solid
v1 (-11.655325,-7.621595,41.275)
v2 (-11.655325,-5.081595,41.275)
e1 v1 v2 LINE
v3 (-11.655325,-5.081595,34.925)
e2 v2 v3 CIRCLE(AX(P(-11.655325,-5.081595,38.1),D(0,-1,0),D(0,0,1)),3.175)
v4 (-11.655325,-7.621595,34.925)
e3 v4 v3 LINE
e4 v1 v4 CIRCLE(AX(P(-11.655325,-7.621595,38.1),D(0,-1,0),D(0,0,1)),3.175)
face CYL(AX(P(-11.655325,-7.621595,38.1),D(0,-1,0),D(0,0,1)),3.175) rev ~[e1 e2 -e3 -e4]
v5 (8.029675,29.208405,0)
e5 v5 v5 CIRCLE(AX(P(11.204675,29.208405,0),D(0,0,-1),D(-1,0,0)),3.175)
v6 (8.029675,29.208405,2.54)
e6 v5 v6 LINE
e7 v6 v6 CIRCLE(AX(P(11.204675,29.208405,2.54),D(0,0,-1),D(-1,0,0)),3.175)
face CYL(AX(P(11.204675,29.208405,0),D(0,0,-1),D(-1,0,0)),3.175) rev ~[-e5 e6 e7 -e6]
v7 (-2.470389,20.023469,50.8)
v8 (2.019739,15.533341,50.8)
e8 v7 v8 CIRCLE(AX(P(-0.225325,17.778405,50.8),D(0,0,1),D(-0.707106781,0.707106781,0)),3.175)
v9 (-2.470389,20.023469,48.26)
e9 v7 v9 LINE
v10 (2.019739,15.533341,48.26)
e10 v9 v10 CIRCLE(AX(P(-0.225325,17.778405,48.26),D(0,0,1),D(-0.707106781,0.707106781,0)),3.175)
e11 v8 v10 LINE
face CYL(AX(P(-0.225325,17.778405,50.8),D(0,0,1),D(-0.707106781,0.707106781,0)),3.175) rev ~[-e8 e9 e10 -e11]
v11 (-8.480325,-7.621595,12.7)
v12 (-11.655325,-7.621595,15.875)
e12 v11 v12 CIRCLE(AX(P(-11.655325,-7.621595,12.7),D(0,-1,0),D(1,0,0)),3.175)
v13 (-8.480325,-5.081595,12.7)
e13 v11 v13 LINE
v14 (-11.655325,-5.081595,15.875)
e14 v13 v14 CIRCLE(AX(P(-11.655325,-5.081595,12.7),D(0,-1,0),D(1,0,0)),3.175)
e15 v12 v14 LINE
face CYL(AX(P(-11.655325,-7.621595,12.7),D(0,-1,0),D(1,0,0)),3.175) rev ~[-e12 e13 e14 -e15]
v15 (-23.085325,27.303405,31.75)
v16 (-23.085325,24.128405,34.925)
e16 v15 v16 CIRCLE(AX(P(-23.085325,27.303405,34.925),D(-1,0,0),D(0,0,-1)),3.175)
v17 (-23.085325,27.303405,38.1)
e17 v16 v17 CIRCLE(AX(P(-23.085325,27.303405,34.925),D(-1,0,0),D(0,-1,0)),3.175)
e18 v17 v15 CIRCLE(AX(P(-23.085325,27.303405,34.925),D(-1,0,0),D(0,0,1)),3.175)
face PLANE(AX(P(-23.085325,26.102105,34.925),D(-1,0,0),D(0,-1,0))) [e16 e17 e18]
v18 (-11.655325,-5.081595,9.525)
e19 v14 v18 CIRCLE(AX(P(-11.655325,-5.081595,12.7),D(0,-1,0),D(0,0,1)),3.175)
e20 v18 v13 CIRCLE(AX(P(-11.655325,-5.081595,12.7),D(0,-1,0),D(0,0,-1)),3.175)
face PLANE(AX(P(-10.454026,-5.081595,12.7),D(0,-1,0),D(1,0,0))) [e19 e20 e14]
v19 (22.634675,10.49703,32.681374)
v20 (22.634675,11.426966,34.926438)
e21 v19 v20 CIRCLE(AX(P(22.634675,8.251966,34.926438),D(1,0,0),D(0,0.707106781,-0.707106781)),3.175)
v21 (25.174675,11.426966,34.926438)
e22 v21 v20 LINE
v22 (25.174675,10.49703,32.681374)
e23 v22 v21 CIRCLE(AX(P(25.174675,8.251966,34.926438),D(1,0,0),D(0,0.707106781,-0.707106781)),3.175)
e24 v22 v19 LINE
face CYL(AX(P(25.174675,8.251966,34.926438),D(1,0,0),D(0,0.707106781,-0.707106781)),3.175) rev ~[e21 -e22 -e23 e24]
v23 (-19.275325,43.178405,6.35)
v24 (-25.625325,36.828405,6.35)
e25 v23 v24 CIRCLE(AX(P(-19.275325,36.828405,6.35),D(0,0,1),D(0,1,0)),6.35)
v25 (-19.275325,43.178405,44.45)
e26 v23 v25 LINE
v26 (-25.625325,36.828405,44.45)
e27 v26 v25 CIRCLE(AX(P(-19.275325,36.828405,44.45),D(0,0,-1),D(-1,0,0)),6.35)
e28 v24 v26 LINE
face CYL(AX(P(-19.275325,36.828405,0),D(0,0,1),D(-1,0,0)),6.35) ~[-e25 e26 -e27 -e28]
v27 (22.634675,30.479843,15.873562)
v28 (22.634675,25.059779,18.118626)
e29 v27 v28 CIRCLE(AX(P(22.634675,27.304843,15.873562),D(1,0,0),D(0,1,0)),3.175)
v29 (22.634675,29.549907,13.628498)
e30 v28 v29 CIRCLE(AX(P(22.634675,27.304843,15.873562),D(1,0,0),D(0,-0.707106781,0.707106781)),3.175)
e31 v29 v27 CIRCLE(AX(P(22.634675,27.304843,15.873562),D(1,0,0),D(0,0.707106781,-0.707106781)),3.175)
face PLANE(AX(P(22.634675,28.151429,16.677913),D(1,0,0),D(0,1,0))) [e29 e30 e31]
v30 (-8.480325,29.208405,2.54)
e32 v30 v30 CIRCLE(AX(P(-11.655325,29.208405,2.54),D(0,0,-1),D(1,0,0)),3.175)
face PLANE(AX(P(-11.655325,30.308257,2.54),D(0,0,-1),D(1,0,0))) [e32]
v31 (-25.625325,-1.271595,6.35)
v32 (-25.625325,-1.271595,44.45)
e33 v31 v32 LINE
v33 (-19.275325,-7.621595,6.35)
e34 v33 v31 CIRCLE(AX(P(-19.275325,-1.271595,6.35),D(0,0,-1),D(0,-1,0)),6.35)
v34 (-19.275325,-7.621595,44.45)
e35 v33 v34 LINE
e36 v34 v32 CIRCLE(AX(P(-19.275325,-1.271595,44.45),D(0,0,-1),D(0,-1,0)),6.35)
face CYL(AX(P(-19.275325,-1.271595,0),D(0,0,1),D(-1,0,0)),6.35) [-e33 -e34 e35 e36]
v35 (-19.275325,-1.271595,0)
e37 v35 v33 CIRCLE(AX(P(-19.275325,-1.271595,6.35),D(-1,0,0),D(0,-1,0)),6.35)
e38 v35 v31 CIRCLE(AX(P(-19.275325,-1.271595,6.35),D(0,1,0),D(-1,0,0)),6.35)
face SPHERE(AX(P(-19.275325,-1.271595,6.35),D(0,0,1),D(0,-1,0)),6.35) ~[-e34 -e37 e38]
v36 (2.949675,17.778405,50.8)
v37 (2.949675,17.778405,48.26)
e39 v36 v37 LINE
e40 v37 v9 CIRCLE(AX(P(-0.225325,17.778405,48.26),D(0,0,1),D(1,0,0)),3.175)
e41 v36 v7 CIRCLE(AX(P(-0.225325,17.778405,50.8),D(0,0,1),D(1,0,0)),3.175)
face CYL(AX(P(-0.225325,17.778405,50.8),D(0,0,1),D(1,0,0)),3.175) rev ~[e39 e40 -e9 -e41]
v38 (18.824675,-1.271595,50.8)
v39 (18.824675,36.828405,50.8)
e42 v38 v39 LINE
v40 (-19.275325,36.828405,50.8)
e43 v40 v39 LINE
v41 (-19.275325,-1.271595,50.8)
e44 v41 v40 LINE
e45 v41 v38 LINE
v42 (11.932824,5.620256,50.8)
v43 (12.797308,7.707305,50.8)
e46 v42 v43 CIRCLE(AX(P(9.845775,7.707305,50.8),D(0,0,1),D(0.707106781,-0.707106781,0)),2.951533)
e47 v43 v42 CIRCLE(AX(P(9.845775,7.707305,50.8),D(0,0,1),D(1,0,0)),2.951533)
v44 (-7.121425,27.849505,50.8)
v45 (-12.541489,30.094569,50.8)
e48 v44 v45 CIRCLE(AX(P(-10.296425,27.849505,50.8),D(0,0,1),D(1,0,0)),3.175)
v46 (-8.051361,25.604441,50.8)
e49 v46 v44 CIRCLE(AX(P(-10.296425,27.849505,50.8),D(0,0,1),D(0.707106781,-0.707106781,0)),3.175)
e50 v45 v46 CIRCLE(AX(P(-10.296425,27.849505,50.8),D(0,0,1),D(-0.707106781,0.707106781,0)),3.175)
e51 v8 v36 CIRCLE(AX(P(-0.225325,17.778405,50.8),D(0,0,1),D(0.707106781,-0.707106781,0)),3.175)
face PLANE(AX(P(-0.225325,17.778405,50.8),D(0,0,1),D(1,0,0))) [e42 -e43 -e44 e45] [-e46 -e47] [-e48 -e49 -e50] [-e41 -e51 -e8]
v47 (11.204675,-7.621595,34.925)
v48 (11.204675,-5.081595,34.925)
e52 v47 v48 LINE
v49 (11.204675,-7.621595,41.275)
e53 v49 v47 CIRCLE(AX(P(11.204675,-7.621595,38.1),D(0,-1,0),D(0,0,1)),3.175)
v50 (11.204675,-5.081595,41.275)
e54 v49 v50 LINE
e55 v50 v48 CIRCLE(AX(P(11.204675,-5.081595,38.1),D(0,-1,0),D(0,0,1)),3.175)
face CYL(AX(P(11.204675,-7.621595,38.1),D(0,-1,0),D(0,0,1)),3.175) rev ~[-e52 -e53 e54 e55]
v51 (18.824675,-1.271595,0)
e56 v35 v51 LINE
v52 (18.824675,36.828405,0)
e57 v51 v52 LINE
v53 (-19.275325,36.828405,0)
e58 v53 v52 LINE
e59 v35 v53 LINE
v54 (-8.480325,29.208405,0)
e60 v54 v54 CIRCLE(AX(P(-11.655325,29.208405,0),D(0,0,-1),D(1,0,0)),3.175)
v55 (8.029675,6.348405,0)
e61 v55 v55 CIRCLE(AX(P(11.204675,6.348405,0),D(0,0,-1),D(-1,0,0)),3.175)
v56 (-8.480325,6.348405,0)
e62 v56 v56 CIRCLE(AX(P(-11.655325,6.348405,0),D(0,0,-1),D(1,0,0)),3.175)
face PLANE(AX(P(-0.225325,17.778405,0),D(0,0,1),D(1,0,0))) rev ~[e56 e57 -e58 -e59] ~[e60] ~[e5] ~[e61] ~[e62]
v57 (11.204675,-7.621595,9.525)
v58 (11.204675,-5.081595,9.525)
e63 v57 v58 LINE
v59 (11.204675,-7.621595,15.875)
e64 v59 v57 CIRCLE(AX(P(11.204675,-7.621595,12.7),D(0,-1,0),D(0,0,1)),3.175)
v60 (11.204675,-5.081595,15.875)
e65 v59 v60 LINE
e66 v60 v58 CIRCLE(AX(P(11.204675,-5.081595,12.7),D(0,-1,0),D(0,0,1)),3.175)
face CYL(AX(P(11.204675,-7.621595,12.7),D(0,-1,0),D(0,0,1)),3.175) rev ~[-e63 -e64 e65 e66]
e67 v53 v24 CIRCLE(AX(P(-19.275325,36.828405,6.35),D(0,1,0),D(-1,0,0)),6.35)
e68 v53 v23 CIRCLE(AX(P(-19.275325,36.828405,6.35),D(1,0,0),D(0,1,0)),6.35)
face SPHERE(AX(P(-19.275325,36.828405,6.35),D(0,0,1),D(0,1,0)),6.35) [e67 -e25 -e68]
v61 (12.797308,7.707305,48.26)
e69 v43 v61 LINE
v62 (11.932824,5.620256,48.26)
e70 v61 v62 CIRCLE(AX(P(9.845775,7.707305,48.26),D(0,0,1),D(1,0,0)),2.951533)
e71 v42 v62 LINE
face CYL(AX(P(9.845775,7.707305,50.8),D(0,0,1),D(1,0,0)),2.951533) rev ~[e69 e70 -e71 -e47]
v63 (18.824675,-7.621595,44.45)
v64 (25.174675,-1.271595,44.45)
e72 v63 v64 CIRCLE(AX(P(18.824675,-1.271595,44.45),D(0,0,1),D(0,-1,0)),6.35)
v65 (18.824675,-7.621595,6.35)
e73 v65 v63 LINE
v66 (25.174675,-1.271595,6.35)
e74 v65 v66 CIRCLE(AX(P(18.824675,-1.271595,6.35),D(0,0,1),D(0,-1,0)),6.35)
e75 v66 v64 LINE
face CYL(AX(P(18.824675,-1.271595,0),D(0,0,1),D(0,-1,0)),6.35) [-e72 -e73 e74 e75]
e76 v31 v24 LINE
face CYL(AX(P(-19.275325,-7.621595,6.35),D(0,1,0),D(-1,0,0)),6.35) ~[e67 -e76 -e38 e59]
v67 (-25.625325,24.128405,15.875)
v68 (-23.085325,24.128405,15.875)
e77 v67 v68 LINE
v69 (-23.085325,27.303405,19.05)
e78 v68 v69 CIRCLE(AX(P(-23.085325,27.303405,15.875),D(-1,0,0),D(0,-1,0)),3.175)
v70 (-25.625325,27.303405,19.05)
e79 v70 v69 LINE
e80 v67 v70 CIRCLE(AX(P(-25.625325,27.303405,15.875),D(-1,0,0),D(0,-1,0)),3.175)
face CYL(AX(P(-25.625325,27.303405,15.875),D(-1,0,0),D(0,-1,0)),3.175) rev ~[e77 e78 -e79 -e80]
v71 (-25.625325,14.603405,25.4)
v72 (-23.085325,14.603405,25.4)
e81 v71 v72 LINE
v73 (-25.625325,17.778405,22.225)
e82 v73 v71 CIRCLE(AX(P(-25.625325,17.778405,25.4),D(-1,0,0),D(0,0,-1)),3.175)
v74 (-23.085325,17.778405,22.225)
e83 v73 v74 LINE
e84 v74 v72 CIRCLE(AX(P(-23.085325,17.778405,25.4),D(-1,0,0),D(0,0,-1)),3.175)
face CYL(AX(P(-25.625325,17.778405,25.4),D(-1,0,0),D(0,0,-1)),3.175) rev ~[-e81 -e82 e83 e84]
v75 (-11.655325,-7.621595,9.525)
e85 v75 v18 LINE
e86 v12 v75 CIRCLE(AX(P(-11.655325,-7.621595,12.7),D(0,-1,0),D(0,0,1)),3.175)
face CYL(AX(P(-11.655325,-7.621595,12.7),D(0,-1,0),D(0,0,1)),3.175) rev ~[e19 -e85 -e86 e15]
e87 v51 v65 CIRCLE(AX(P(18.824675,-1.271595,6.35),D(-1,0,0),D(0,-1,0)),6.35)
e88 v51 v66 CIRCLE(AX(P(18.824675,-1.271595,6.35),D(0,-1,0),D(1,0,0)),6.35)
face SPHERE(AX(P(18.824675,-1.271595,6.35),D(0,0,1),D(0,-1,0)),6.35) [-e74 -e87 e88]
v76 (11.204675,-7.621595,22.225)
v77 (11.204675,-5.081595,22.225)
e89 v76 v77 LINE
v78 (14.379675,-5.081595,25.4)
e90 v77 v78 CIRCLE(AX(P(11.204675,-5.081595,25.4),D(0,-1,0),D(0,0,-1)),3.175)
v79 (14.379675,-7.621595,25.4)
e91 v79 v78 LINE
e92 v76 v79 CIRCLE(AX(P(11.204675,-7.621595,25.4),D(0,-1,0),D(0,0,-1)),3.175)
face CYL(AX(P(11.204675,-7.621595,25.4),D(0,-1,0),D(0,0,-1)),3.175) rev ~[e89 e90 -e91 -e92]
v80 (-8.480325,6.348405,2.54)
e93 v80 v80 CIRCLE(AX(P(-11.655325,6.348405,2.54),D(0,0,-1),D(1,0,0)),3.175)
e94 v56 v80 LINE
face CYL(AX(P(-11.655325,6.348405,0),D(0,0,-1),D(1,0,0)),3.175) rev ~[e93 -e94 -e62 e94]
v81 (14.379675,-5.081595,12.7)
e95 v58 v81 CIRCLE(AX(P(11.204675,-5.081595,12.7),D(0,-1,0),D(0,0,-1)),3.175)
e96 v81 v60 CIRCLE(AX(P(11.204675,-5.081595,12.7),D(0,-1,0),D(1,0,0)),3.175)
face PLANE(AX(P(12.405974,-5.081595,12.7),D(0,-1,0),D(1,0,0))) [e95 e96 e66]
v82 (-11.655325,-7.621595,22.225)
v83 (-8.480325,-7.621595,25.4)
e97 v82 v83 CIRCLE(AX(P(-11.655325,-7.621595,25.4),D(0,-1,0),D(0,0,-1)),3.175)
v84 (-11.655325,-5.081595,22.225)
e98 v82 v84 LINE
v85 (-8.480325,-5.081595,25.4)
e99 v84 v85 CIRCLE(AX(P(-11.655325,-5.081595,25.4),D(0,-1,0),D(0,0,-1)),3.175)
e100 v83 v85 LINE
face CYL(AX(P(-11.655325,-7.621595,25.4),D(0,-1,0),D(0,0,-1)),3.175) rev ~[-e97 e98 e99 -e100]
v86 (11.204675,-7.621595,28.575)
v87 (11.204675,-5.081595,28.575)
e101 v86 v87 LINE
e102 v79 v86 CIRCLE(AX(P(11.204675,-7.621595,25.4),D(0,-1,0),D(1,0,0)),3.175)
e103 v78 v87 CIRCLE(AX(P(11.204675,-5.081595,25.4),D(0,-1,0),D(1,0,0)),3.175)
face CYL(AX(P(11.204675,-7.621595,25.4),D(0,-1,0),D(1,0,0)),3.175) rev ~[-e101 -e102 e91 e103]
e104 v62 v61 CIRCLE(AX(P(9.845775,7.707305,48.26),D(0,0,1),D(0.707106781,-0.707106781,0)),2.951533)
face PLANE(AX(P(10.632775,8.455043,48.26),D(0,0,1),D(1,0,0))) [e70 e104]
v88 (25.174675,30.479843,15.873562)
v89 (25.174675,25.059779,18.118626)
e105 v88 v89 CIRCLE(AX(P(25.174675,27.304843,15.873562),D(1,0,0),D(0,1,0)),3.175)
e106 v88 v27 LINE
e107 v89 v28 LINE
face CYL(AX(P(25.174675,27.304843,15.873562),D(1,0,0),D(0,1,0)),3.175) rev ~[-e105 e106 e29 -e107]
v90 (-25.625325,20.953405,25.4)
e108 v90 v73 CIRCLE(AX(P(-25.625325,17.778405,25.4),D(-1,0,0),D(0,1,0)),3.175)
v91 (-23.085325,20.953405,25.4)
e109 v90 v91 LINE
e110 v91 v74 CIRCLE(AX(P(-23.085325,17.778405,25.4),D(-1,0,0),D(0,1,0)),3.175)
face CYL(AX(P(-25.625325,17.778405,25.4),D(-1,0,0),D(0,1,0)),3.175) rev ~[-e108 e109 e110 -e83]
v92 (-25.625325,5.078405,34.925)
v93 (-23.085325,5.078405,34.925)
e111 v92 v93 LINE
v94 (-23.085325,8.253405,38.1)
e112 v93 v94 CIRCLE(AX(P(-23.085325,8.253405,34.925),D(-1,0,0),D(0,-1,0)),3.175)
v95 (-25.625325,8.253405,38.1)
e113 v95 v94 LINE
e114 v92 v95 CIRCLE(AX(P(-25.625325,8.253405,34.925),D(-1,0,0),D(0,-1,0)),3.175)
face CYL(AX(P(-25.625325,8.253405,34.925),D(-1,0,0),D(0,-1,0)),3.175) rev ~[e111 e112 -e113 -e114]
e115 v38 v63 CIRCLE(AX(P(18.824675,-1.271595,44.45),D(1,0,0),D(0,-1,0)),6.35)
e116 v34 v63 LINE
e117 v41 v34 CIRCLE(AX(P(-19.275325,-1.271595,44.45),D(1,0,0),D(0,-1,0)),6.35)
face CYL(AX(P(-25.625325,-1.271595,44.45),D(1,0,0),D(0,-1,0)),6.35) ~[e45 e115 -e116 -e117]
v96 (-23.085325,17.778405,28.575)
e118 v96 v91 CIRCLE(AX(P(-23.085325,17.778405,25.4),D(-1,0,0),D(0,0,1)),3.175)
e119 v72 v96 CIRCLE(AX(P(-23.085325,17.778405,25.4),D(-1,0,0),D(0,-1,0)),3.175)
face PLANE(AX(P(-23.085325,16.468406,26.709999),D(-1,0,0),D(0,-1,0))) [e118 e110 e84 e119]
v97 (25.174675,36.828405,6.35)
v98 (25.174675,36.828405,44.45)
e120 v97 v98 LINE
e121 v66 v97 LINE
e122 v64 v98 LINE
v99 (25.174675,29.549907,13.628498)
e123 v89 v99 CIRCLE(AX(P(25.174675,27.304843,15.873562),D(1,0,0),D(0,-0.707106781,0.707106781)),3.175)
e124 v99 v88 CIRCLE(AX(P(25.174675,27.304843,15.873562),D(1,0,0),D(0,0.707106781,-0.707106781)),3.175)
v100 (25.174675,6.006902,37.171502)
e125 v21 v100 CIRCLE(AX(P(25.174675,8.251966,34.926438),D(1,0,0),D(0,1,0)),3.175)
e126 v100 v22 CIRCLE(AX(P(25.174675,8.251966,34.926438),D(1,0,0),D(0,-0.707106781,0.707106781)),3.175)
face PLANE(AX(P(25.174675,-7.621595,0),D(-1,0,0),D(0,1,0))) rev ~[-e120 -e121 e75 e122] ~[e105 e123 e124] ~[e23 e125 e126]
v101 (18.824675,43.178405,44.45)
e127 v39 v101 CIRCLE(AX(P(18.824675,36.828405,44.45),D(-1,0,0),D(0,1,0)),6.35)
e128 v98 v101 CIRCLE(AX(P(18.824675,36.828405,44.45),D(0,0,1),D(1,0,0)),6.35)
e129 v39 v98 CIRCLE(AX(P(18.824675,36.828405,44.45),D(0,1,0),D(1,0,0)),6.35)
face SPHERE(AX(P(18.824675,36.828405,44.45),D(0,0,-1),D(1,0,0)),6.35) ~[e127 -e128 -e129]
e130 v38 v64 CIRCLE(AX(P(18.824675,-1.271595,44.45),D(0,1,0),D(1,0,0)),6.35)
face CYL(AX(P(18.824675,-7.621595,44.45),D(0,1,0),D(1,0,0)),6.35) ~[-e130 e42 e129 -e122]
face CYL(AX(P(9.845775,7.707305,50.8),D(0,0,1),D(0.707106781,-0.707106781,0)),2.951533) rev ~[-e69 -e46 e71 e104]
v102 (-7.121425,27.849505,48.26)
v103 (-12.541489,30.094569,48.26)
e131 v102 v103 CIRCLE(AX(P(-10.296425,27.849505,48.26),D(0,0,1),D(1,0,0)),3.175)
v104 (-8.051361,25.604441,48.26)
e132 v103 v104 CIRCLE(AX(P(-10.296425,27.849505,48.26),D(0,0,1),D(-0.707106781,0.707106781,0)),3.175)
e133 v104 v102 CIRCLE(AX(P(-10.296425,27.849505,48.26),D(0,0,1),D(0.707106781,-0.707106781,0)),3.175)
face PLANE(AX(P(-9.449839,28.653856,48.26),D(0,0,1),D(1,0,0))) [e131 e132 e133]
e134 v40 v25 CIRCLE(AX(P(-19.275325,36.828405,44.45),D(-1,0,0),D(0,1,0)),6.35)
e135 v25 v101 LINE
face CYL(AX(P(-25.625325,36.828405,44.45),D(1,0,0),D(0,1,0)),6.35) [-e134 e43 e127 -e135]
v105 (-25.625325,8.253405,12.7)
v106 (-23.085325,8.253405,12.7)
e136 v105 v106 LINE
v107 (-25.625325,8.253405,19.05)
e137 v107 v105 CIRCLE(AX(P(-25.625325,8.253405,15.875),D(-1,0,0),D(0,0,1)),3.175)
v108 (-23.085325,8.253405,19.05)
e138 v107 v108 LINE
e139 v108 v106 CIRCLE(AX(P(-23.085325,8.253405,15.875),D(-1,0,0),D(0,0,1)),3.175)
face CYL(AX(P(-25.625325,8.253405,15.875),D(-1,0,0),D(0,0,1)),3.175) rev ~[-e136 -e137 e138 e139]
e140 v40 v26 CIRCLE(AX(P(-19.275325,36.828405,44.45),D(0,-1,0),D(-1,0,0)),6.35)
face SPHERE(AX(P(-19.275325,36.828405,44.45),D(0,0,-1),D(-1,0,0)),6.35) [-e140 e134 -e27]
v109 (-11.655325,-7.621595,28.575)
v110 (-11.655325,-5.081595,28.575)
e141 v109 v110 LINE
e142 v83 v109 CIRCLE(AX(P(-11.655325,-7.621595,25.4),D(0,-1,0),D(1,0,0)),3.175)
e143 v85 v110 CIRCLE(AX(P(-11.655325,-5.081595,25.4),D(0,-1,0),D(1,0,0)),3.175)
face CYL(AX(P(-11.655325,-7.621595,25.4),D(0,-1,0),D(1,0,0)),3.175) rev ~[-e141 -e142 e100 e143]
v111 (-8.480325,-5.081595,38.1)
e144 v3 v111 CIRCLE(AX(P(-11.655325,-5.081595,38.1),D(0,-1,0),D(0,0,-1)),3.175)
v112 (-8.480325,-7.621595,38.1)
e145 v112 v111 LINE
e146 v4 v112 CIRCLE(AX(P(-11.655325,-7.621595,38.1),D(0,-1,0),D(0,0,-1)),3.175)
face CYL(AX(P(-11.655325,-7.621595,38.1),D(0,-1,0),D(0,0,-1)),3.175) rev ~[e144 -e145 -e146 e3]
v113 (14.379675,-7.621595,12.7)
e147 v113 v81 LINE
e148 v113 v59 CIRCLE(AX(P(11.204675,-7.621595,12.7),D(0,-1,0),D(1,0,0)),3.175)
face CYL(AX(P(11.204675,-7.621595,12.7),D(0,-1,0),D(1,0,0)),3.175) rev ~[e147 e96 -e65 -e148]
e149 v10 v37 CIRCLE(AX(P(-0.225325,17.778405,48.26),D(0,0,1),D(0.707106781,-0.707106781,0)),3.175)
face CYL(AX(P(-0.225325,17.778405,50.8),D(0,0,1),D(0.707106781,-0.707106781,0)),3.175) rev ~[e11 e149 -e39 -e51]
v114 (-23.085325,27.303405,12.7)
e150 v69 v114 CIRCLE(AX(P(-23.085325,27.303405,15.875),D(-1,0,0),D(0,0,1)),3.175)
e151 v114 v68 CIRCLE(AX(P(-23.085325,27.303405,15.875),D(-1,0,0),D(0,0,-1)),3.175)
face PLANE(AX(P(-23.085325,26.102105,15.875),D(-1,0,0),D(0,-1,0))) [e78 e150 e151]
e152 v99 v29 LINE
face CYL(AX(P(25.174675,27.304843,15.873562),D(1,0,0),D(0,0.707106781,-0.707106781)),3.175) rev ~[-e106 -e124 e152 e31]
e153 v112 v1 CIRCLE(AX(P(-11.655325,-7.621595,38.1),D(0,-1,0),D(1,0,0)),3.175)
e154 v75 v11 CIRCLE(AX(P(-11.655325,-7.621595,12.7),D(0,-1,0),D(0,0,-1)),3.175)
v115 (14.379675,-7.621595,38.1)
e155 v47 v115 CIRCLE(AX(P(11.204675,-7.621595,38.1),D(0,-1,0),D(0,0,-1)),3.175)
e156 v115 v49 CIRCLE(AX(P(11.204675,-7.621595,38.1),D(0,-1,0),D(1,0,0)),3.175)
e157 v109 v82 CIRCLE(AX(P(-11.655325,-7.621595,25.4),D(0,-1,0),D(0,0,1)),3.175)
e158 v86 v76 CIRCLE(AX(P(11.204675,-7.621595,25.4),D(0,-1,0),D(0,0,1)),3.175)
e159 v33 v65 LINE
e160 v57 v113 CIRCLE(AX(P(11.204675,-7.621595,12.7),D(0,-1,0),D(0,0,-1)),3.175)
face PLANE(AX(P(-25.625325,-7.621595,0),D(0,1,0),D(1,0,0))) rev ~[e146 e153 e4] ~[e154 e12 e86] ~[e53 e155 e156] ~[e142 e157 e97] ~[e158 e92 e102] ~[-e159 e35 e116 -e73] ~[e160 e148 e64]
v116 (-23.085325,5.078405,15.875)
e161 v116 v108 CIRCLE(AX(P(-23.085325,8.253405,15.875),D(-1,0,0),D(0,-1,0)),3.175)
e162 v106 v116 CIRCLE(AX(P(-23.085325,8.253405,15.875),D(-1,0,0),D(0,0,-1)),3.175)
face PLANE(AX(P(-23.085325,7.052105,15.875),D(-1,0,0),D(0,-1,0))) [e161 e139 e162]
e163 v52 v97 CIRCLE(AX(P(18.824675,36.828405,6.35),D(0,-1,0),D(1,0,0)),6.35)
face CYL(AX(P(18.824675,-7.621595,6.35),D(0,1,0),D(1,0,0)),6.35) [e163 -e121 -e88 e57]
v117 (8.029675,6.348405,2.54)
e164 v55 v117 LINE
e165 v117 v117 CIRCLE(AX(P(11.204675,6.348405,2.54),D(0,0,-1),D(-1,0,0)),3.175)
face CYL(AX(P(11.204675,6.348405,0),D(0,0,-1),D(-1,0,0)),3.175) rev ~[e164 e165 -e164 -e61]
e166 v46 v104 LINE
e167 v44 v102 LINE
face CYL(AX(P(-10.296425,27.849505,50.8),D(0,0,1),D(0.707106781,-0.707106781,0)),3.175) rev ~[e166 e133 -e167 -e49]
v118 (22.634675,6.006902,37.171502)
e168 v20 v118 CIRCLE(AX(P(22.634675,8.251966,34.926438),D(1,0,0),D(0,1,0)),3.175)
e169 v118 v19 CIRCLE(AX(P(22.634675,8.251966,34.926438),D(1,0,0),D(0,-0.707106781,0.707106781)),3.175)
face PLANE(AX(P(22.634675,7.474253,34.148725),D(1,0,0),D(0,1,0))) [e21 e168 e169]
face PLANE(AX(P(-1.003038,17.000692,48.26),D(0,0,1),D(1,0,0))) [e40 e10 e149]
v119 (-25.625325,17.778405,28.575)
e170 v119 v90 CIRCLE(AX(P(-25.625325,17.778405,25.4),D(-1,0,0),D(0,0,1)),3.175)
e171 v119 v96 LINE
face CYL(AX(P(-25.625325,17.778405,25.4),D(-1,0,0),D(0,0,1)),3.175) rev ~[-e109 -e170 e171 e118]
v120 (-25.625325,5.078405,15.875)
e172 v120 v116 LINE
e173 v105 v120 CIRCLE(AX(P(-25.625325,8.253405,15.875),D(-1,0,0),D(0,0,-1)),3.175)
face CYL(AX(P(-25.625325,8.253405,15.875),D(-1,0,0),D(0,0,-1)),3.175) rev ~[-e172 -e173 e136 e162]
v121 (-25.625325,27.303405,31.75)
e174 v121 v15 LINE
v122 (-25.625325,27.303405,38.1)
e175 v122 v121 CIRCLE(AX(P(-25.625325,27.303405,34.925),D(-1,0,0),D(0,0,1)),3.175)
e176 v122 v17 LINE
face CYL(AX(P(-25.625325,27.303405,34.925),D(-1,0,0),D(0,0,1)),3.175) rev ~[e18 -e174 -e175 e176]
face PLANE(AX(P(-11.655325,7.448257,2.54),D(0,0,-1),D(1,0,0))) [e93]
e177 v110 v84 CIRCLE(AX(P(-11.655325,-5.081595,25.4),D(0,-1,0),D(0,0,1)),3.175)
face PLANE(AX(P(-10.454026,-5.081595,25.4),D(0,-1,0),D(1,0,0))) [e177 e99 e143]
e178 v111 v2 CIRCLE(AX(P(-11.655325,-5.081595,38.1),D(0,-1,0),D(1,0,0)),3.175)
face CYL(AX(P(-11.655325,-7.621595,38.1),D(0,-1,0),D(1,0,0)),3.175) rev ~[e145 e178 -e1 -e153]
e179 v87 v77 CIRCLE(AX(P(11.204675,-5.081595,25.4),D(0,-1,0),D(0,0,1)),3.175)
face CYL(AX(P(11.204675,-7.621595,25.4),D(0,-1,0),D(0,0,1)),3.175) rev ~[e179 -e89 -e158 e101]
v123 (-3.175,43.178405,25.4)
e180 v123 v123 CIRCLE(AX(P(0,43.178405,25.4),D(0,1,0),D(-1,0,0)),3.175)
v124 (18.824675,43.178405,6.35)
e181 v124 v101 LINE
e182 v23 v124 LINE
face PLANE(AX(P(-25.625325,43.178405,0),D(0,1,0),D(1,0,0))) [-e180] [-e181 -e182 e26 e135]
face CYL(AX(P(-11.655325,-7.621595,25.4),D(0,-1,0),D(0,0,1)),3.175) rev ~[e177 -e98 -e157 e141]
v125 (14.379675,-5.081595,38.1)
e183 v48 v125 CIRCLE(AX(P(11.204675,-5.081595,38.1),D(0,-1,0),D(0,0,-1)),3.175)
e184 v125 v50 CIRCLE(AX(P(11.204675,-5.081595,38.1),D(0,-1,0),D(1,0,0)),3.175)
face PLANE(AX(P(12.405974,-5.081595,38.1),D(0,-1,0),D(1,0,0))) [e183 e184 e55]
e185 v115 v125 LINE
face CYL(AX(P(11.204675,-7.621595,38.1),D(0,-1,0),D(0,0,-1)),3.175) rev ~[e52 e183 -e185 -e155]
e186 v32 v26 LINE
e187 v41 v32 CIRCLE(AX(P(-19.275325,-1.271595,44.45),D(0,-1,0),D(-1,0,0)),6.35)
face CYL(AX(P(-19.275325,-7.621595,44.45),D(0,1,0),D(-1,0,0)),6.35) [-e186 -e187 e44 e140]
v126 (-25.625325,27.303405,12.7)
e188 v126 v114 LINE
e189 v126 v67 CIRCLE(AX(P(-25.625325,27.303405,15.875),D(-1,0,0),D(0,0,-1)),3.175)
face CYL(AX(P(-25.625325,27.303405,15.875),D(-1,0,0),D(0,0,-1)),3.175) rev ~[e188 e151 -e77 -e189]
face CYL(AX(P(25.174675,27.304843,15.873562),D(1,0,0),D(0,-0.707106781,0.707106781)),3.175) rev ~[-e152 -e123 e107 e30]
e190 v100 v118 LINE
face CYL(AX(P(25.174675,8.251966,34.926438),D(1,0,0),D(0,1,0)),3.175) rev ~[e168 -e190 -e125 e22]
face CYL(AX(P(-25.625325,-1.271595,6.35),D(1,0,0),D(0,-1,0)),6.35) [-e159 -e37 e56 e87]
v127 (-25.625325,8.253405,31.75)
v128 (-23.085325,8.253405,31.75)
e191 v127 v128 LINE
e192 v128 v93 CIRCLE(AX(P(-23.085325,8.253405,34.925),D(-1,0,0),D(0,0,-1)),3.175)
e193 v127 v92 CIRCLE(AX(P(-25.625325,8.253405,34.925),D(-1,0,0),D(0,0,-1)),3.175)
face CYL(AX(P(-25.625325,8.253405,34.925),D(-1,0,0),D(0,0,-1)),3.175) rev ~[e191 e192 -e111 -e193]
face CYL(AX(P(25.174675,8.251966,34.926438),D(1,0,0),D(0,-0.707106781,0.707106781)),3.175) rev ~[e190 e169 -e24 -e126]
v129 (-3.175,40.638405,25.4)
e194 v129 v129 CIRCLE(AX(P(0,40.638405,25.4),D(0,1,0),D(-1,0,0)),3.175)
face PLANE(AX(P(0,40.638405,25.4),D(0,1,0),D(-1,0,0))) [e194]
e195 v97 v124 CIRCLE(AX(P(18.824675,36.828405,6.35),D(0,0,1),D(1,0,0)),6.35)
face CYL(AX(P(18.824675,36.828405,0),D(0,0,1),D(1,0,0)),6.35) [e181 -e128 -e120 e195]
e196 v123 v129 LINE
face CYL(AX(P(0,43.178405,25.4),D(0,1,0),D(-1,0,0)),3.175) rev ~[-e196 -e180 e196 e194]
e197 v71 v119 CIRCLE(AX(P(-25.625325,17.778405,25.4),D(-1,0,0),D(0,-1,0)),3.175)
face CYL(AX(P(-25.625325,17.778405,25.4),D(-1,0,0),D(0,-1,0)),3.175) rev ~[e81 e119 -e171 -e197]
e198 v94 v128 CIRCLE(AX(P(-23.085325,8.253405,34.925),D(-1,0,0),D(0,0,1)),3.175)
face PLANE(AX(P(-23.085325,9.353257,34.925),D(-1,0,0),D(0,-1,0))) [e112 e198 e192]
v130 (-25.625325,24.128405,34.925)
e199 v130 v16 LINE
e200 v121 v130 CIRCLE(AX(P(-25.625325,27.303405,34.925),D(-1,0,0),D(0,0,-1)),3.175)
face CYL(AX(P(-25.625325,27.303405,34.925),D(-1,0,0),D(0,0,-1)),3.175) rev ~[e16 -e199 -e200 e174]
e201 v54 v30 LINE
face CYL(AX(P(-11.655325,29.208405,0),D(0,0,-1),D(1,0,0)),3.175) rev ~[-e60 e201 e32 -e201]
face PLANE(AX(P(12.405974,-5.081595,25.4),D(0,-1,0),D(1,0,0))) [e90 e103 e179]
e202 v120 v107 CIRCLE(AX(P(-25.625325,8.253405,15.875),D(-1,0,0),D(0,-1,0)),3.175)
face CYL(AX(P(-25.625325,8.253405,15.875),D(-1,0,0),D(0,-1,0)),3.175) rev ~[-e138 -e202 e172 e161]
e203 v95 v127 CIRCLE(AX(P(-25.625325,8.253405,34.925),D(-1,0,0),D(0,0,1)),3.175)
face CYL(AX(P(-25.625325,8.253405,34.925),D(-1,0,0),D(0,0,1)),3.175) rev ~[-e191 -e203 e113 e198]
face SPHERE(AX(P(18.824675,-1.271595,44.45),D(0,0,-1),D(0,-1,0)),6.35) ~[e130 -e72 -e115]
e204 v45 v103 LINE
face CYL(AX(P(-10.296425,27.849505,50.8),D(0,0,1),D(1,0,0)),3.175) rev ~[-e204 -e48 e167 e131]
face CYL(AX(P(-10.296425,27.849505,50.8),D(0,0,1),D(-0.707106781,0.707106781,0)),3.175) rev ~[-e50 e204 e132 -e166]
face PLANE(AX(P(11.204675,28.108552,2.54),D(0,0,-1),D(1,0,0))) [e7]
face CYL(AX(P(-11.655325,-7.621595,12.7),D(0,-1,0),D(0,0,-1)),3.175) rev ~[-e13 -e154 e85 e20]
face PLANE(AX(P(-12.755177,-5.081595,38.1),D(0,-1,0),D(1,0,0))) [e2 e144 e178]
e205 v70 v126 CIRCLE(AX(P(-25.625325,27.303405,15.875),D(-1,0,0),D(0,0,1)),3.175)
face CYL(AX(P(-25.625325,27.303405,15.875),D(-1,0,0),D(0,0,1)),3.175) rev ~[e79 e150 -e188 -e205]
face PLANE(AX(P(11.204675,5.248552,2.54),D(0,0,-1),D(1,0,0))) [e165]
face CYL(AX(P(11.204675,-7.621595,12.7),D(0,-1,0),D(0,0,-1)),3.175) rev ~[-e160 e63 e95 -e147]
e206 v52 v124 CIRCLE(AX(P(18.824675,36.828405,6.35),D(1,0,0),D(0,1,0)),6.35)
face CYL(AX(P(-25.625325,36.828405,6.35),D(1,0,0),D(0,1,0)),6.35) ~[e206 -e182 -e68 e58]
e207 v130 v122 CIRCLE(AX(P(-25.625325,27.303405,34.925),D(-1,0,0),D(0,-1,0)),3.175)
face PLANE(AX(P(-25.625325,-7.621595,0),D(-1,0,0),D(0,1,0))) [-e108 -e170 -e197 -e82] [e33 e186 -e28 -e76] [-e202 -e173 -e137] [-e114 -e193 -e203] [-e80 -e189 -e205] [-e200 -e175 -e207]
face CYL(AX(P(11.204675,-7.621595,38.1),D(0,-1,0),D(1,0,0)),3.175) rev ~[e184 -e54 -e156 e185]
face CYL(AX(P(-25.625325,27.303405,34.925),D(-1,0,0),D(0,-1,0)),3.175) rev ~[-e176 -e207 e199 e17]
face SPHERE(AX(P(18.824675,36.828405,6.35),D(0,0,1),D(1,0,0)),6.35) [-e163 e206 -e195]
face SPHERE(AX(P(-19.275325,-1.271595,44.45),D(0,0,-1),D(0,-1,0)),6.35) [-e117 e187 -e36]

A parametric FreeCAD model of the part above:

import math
import FreeCAD as App
import Part
import Sketcher

V = App.Vector
Q = App.Units.Quantity


def add_polygon(sketch, points):
    """Adds a closed chain of lines whose ends are joined by coincident constraints."""
    first, n = sketch.GeometryCount, len(points)
    for a, b in zip(points, points[1:] + points[:1]):
        sketch.addGeometry(Part.LineSegment(App.Vector(*a, 0), App.Vector(*b, 0)), False)
    for i in range(n):
        sketch.addConstraint(Sketcher.Constraint("Coincident", first + i, 2, first + (i + 1) % n, 1))

doc = App.newDocument("Part")
body = doc.addObject("PartDesign::Body", "Body")

# Sketch on XY plane
sketch1 = doc.addObject("Sketcher::SketchObject", "Sketch")
body.addObject(sketch1)
sketch1.AttachmentSupport = (doc.XY_Plane, [""])
sketch1.MapMode = "FlatFace"
add_polygon(sketch1, [(-26, 43), (-26, -8), (25, -8), (25, 43)])  # lines 0-3
sketch1.addConstraint(Sketcher.Constraint("Vertical", 0))
sketch1.addConstraint(Sketcher.Constraint("Horizontal", 1))
sketch1.addConstraint(Sketcher.Constraint("Vertical", 2))
sketch1.addConstraint(Sketcher.Constraint("Horizontal", 3))
sketch1.addConstraint(Sketcher.Constraint("Equal", 3, 0))
sketch1.addConstraint(Sketcher.Constraint("DistanceX", 1, 1, 1, 2, Q("2 in")))
sketch1.addConstraint(Sketcher.Constraint("DistanceX", 0, 2, -1, 1, 25.625325))
sketch1.addConstraint(Sketcher.Constraint("DistanceY", 0, 2, -1, 1, 7.621595))
pad1 = doc.addObject("PartDesign::Pad", "Pad")
body.addObject(pad1)
pad1.Profile = sketch1
pad1.Length = Q("2 in")
doc.recompute()

fillet = doc.addObject("PartDesign::Fillet", "Fillet")
body.addObject(fillet)
fillet.Base = (pad1, ["Edge1"])
fillet.UseAllEdges = True
fillet.Radius = Q("0.25 in")

# Sketch on XZ plane
sketch2 = doc.addObject("Sketcher::SketchObject", "Sketch001")
body.addObject(sketch2)
sketch2.AttachmentSupport = (doc.XZ_Plane, [""])
sketch2.MapMode = "FlatFace"
sketch2.AttachmentOffset = App.Placement(V(0, 0, -43.178405), App.Rotation())
sketch2.addGeometry(Part.Circle(V(0, 25.4, 0), V(0, 0, 1), 3.2), False)
sketch2.addConstraint(Sketcher.Constraint("PointOnObject", 0, 3, -2))
sketch2.addConstraint(Sketcher.Constraint("Diameter", 0, Q("0.25 in")))
sketch2.addConstraint(Sketcher.Constraint("DistanceY", -1, 1, 0, 3, Q("1 in")))
pocket1 = doc.addObject("PartDesign::Pocket", "Pocket")
body.addObject(pocket1)
pocket1.Profile = sketch2
pocket1.Length = Q("0.1 in")
pocket1.Reversed = True

# Sketch on XZ plane
sketch3 = doc.addObject("Sketcher::SketchObject", "Sketch002")
body.addObject(sketch3)
sketch3.AttachmentSupport = (doc.XZ_Plane, [""])
sketch3.MapMode = "FlatFace"
sketch3.AttachmentOffset = App.Placement(V(0, 0, 7.621595), App.Rotation())
sketch3.addGeometry(Part.ArcOfCircle(Part.Circle(V(-11.7, 38.1, 0), V(0, 0, 1), 3.2), math.radians(90), math.radians(270)), False)
sketch3.addGeometry(Part.ArcOfCircle(Part.Circle(V(-11.7, 38.1, 0), V(0, 0, 1), 3.2), math.radians(-90), math.radians(0)), False)
sketch3.addGeometry(Part.ArcOfCircle(Part.Circle(V(-11.7, 38.1, 0), V(0, 0, 1), 3.2), math.radians(0), math.radians(90)), False)
sketch3.addGeometry(Part.ArcOfCircle(Part.Circle(V(-11.7, 25.4, 0), V(0, 0, 1), 3.2), math.radians(0), math.radians(90)), False)
sketch3.addGeometry(Part.ArcOfCircle(Part.Circle(V(-11.7, 25.4, 0), V(0, 0, 1), 3.2), math.radians(90), math.radians(270)), False)
sketch3.addGeometry(Part.ArcOfCircle(Part.Circle(V(-11.7, 25.4, 0), V(0, 0, 1), 3.2), math.radians(-90), math.radians(0)), False)
sketch3.addGeometry(Part.ArcOfCircle(Part.Circle(V(-11.7, 12.7, 0), V(0, 0, 1), 3.2), math.radians(-90), math.radians(0)), False)
sketch3.addGeometry(Part.ArcOfCircle(Part.Circle(V(-11.7, 12.7, 0), V(0, 0, 1), 3.2), math.radians(0), math.radians(90)), False)
sketch3.addGeometry(Part.ArcOfCircle(Part.Circle(V(-11.7, 12.7, 0), V(0, 0, 1), 3.2), math.radians(90), math.radians(270)), False)
sketch3.addGeometry(Part.ArcOfCircle(Part.Circle(V(11.2, 12.7, 0), V(0, 0, 1), 3.2), math.radians(-90), math.radians(0)), False)
sketch3.addGeometry(Part.ArcOfCircle(Part.Circle(V(11.2, 12.7, 0), V(0, 0, 1), 3.2), math.radians(0), math.radians(90)), False)
sketch3.addGeometry(Part.ArcOfCircle(Part.Circle(V(11.2, 12.7, 0), V(0, 0, 1), 3.2), math.radians(90), math.radians(270)), False)
sketch3.addGeometry(Part.ArcOfCircle(Part.Circle(V(11.2, 25.4, 0), V(0, 0, 1), 3.2), math.radians(0), math.radians(90)), False)
sketch3.addGeometry(Part.ArcOfCircle(Part.Circle(V(11.2, 25.4, 0), V(0, 0, 1), 3.2), math.radians(90), math.radians(270)), False)
sketch3.addGeometry(Part.ArcOfCircle(Part.Circle(V(11.2, 25.4, 0), V(0, 0, 1), 3.2), math.radians(-90), math.radians(0)), False)
sketch3.addGeometry(Part.ArcOfCircle(Part.Circle(V(11.2, 38.1, 0), V(0, 0, 1), 3.2), math.radians(0), math.radians(90)), False)
sketch3.addGeometry(Part.ArcOfCircle(Part.Circle(V(11.2, 38.1, 0), V(0, 0, 1), 3.2), math.radians(90), math.radians(270)), False)
sketch3.addGeometry(Part.ArcOfCircle(Part.Circle(V(11.2, 38.1, 0), V(0, 0, 1), 3.2), math.radians(-90), math.radians(0)), False)
sketch3.addConstraint(Sketcher.Constraint("Tangent", 0, 2, 1, 1))
sketch3.addConstraint(Sketcher.Constraint("Tangent", 1, 2, 2, 1))
sketch3.addConstraint(Sketcher.Constraint("Tangent", 2, 2, 0, 1))
sketch3.addConstraint(Sketcher.Constraint("Tangent", 3, 2, 4, 1))
sketch3.addConstraint(Sketcher.Constraint("Tangent", 4, 2, 5, 1))
sketch3.addConstraint(Sketcher.Constraint("Tangent", 5, 2, 3, 1))
sketch3.addConstraint(Sketcher.Constraint("Tangent", 6, 2, 7, 1))
sketch3.addConstraint(Sketcher.Constraint("Tangent", 7, 2, 8, 1))
sketch3.addConstraint(Sketcher.Constraint("Tangent", 8, 2, 6, 1))
sketch3.addConstraint(Sketcher.Constraint("Tangent", 9, 2, 10, 1))
sketch3.addConstraint(Sketcher.Constraint("Tangent", 10, 2, 11, 1))
sketch3.addConstraint(Sketcher.Constraint("Tangent", 11, 2, 9, 1))
sketch3.addConstraint(Sketcher.Constraint("Tangent", 12, 2, 13, 1))
sketch3.addConstraint(Sketcher.Constraint("Tangent", 13, 2, 14, 1))
sketch3.addConstraint(Sketcher.Constraint("Tangent", 14, 2, 12, 1))
sketch3.addConstraint(Sketcher.Constraint("Tangent", 15, 2, 16, 1))
sketch3.addConstraint(Sketcher.Constraint("Tangent", 16, 2, 17, 1))
sketch3.addConstraint(Sketcher.Constraint("Tangent", 17, 2, 15, 1))
sketch3.addConstraint(Sketcher.Constraint("Equal", 2, 3))
sketch3.addConstraint(Sketcher.Constraint("Equal", 5, 6))
sketch3.addConstraint(Sketcher.Constraint("Equal", 8, 9))
sketch3.addConstraint(Sketcher.Constraint("Equal", 11, 12))
sketch3.addConstraint(Sketcher.Constraint("Equal", 14, 15))
sketch3.addConstraint(Sketcher.Constraint("Horizontal", 8, 3, 9, 3))
sketch3.addConstraint(Sketcher.Constraint("Horizontal", 5, 3, 12, 3))
sketch3.addConstraint(Sketcher.Constraint("Horizontal", 2, 3, 15, 3))
sketch3.addConstraint(Sketcher.Constraint("Horizontal", 17, 3, 1, 2))
sketch3.addConstraint(Sketcher.Constraint("Horizontal", 14, 3, 5, 2))
sketch3.addConstraint(Sketcher.Constraint("Horizontal", 11, 3, 6, 2))
sketch3.addConstraint(Sketcher.Constraint("Horizontal", 6, 2, 9, 2))
sketch3.addConstraint(Sketcher.Constraint("Horizontal", 5, 2, 14, 2))
sketch3.addConstraint(Sketcher.Constraint("Horizontal", 1, 2, 17, 2))
sketch3.addConstraint(Sketcher.Constraint("Vertical", 2, 3, 3, 3))
sketch3.addConstraint(Sketcher.Constraint("Vertical", 5, 3, 6, 3))
sketch3.addConstraint(Sketcher.Constraint("Vertical", 11, 3, 12, 3))
sketch3.addConstraint(Sketcher.Constraint("Vertical", 14, 3, 15, 3))
sketch3.addConstraint(Sketcher.Constraint("Vertical", 8, 3, 0, 2))
sketch3.addConstraint(Sketcher.Constraint("Vertical", 0, 2, 2, 2))
sketch3.addConstraint(Sketcher.Constraint("Vertical", 2, 2, 3, 2))
sketch3.addConstraint(Sketcher.Constraint("Vertical", 3, 2, 4, 2))
sketch3.addConstraint(Sketcher.Constraint("Vertical", 4, 2, 7, 2))
sketch3.addConstraint(Sketcher.Constraint("Vertical", 7, 2, 8, 2))
sketch3.addConstraint(Sketcher.Constraint("Vertical", 17, 3, 10, 2))
sketch3.addConstraint(Sketcher.Constraint("Vertical", 10, 2, 11, 2))
sketch3.addConstraint(Sketcher.Constraint("Vertical", 11, 2, 12, 2))
sketch3.addConstraint(Sketcher.Constraint("Vertical", 12, 2, 13, 2))
sketch3.addConstraint(Sketcher.Constraint("Vertical", 13, 2, 15, 2))
sketch3.addConstraint(Sketcher.Constraint("Vertical", 15, 2, 16, 2))
sketch3.addConstraint(Sketcher.Constraint("DistanceY", -1, 1, 3, 3, Q("1 in")))
sketch3.addConstraint(Sketcher.Constraint("Radius", 0, Q("0.125 in")))
sketch3.addConstraint(Sketcher.Constraint("DistanceY", 6, 3, 0, 3, Q("1 in")))
sketch3.addConstraint(Sketcher.Constraint("DistanceY", -1, 1, 0, 3, Q("1.5 in")))
sketch3.addConstraint(Sketcher.Constraint("DistanceX", 8, 3, 9, 3, Q("0.9 in")))
sketch3.addConstraint(Sketcher.Constraint("DistanceX", 0, 3, -1, 1, 11.655325))
pocket2 = doc.addObject("PartDesign::Pocket", "Pocket001")
body.addObject(pocket2)
pocket2.Profile = sketch3
pocket2.Length = Q("0.1 in")

# Sketch on YZ plane
sketch4 = doc.addObject("Sketcher::SketchObject", "Sketch003")
body.addObject(sketch4)
sketch4.AttachmentSupport = (doc.YZ_Plane, [""])
sketch4.MapMode = "FlatFace"
sketch4.AttachmentOffset = App.Placement(V(0, 0, -25.625325), App.Rotation())
sketch4.addGeometry(Part.ArcOfCircle(Part.Circle(V(27.3, 34.9, 0), V(0, 0, 1), 3.2), math.radians(90), math.radians(180)), False)
sketch4.addGeometry(Part.ArcOfCircle(Part.Circle(V(27.3, 34.9, 0), V(0, 0, 1), 3.2), math.radians(-90), math.radians(90)), False)
sketch4.addGeometry(Part.ArcOfCircle(Part.Circle(V(27.3, 34.9, 0), V(0, 0, 1), 3.2), math.radians(180), math.radians(270)), False)
sketch4.addGeometry(Part.ArcOfCircle(Part.Circle(V(8.3, 34.9, 0), V(0, 0, 1), 3.2), math.radians(-90), math.radians(90)), False)
sketch4.addGeometry(Part.ArcOfCircle(Part.Circle(V(8.3, 34.9, 0), V(0, 0, 1), 3.2), math.radians(180), math.radians(270)), False)
sketch4.addGeometry(Part.ArcOfCircle(Part.Circle(V(8.3, 34.9, 0), V(0, 0, 1), 3.2), math.radians(90), math.radians(180)), False)
sketch4.addGeometry(Part.ArcOfCircle(Part.Circle(V(17.8, 25.4, 0), V(0, 0, 1), 3.2), math.radians(90), math.radians(180)), False)
sketch4.addGeometry(Part.ArcOfCircle(Part.Circle(V(17.8, 25.4, 0), V(0, 0, 1), 3.2), math.radians(0), math.radians(90)), False)
sketch4.addGeometry(Part.ArcOfCircle(Part.Circle(V(17.8, 25.4, 0), V(0, 0, 1), 3.2), math.radians(-90), math.radians(0)), False)
sketch4.addGeometry(Part.ArcOfCircle(Part.Circle(V(17.8, 25.4, 0), V(0, 0, 1), 3.2), math.radians(180), math.radians(270)), False)
sketch4.addGeometry(Part.ArcOfCircle(Part.Circle(V(8.3, 15.9, 0), V(0, 0, 1), 3.2), math.radians(180), math.radians(270)), False)
sketch4.addGeometry(Part.ArcOfCircle(Part.Circle(V(8.3, 15.9, 0), V(0, 0, 1), 3.2), math.radians(90), math.radians(180)), False)
sketch4.addGeometry(Part.ArcOfCircle(Part.Circle(V(8.3, 15.9, 0), V(0, 0, 1), 3.2), math.radians(-90), math.radians(90)), False)
sketch4.addGeometry(Part.ArcOfCircle(Part.Circle(V(27.3, 15.9, 0), V(0, 0, 1), 3.2), math.radians(90), math.radians(180)), False)
sketch4.addGeometry(Part.ArcOfCircle(Part.Circle(V(27.3, 15.9, 0), V(0, 0, 1), 3.2), math.radians(-90), math.radians(90)), False)
sketch4.addGeometry(Part.ArcOfCircle(Part.Circle(V(27.3, 15.9, 0), V(0, 0, 1), 3.2), math.radians(180), math.radians(270)), False)
sketch4.addConstraint(Sketcher.Constraint("Tangent", 0, 1, 1, 2))
sketch4.addConstraint(Sketcher.Constraint("Tangent", 1, 1, 2, 2))
sketch4.addConstraint(Sketcher.Constraint("Tangent", 2, 1, 0, 2))
sketch4.addConstraint(Sketcher.Constraint("Tangent", 3, 1, 4, 2))
sketch4.addConstraint(Sketcher.Constraint("Tangent", 4, 1, 5, 2))
sketch4.addConstraint(Sketcher.Constraint("Tangent", 5, 1, 3, 2))
sketch4.addConstraint(Sketcher.Constraint("Tangent", 6, 1, 7, 2))
sketch4.addConstraint(Sketcher.Constraint("Tangent", 7, 1, 8, 2))
sketch4.addConstraint(Sketcher.Constraint("Tangent", 8, 1, 9, 2))
sketch4.addConstraint(Sketcher.Constraint("Tangent", 9, 1, 6, 2))
sketch4.addConstraint(Sketcher.Constraint("Tangent", 10, 1, 11, 2))
sketch4.addConstraint(Sketcher.Constraint("Tangent", 11, 1, 12, 2))
sketch4.addConstraint(Sketcher.Constraint("Tangent", 12, 1, 10, 2))
sketch4.addConstraint(Sketcher.Constraint("Tangent", 13, 1, 14, 2))
sketch4.addConstraint(Sketcher.Constraint("Tangent", 14, 1, 15, 2))
sketch4.addConstraint(Sketcher.Constraint("Tangent", 15, 1, 13, 2))
sketch4.addConstraint(Sketcher.Constraint("Equal", 2, 3))
sketch4.addConstraint(Sketcher.Constraint("Equal", 5, 6))
sketch4.addConstraint(Sketcher.Constraint("Equal", 6, 7))
sketch4.addConstraint(Sketcher.Constraint("Equal", 9, 10))
sketch4.addConstraint(Sketcher.Constraint("Equal", 12, 13))
sketch4.addConstraint(Sketcher.Constraint("Horizontal", 2, 3, 3, 3))
sketch4.addConstraint(Sketcher.Constraint("Horizontal", 12, 3, 13, 3))
sketch4.addConstraint(Sketcher.Constraint("Horizontal", 5, 3, 2, 1))
sketch4.addConstraint(Sketcher.Constraint("Horizontal", 2, 1, 4, 1))
sketch4.addConstraint(Sketcher.Constraint("Horizontal", 9, 3, 7, 1))
sketch4.addConstraint(Sketcher.Constraint("Horizontal", 7, 1, 9, 1))
sketch4.addConstraint(Sketcher.Constraint("Horizontal", 15, 3, 10, 1))
sketch4.addConstraint(Sketcher.Constraint("Horizontal", 10, 1, 15, 1))
sketch4.addConstraint(Sketcher.Constraint("Vertical", 5, 3, 10, 3))
sketch4.addConstraint(Sketcher.Constraint("Vertical", 2, 3, 13, 3))
sketch4.addConstraint(Sketcher.Constraint("Vertical", 15, 3, 0, 1))
sketch4.addConstraint(Sketcher.Constraint("Vertical", 0, 1, 1, 1))
sketch4.addConstraint(Sketcher.Constraint("Vertical", 12, 3, 3, 1))
sketch4.addConstraint(Sketcher.Constraint("Vertical", 3, 1, 5, 1))
sketch4.addConstraint(Sketcher.Constraint("Vertical", 9, 3, 6, 1))
sketch4.addConstraint(Sketcher.Constraint("Vertical", 6, 1, 8, 1))
sketch4.addConstraint(Sketcher.Constraint("Vertical", 5, 1, 11, 1))
sketch4.addConstraint(Sketcher.Constraint("Vertical", 11, 1, 12, 1))
sketch4.addConstraint(Sketcher.Constraint("Vertical", 1, 1, 13, 1))
sketch4.addConstraint(Sketcher.Constraint("Vertical", 13, 1, 14, 1))
sketch4.addConstraint(Sketcher.Constraint("DistanceY", -1, 1, 6, 3, Q("1 in")))
sketch4.addConstraint(Sketcher.Constraint("Radius", 0, Q("0.125 in")))
sketch4.addConstraint(Sketcher.Constraint("DistanceY", -1, 1, 0, 1, Q("1.5 in")))
sketch4.addConstraint(Sketcher.Constraint("DistanceY", -1, 1, 12, 1, Q("0.5 in")))
sketch4.addConstraint(Sketcher.Constraint("DistanceX", 4, 1, 6, 3, Q("0.5 in")))
sketch4.addConstraint(Sketcher.Constraint("DistanceX", 3, 3, 0, 3, Q("0.75 in")))
sketch4.addConstraint(Sketcher.Constraint("DistanceX", -1, 1, 0, 3, 27.303405))
pocket3 = doc.addObject("PartDesign::Pocket", "Pocket002")
body.addObject(pocket3)
pocket3.Profile = sketch4
pocket3.Length = Q("0.1 in")
pocket3.Reversed = True

# Sketch on YZ plane
sketch5 = doc.addObject("Sketcher::SketchObject", "Sketch004")
body.addObject(sketch5)
sketch5.AttachmentSupport = (doc.YZ_Plane, [""])
sketch5.MapMode = "FlatFace"
sketch5.AttachmentOffset = App.Placement(V(0, 0, 25.174675), App.Rotation())
sketch5.addGeometry(Part.ArcOfCircle(Part.Circle(V(27.3, 15.9, 0), V(0, 0, 1), 3.2), math.radians(0), math.radians(135)), False)
sketch5.addGeometry(Part.ArcOfCircle(Part.Circle(V(27.3, 15.9, 0), V(0, 0, 1), 3.2), math.radians(135), math.radians(315)), False)
sketch5.addGeometry(Part.ArcOfCircle(Part.Circle(V(27.3, 15.9, 0), V(0, 0, 1), 3.2), math.radians(-45), math.radians(0)), False)
sketch5.addGeometry(Part.ArcOfCircle(Part.Circle(V(8.3, 34.9, 0), V(0, 0, 1), 3.2), math.radians(135), math.radians(315)), False)
sketch5.addGeometry(Part.ArcOfCircle(Part.Circle(V(8.3, 34.9, 0), V(0, 0, 1), 3.2), math.radians(-45), math.radians(0)), False)
sketch5.addGeometry(Part.ArcOfCircle(Part.Circle(V(8.3, 34.9, 0), V(0, 0, 1), 3.2), math.radians(0), math.radians(135)), False)
sketch5.addConstraint(Sketcher.Constraint("Tangent", 0, 2, 1, 1))
sketch5.addConstraint(Sketcher.Constraint("Tangent", 1, 2, 2, 1))
sketch5.addConstraint(Sketcher.Constraint("Tangent", 2, 2, 0, 1))
sketch5.addConstraint(Sketcher.Constraint("Tangent", 3, 2, 4, 1))
sketch5.addConstraint(Sketcher.Constraint("Tangent", 4, 2, 5, 1))
sketch5.addConstraint(Sketcher.Constraint("Tangent", 5, 2, 3, 1))
sketch5.addConstraint(Sketcher.Constraint("Equal", 2, 3))
sketch5.addConstraint(Sketcher.Constraint("Horizontal", 1, 3, 2, 2))
sketch5.addConstraint(Sketcher.Constraint("Horizontal", 5, 3, 4, 2))
sketch5.addConstraint(Sketcher.Constraint("Radius", 0, Q("0.125 in")))
sketch5.addConstraint(Sketcher.Constraint("DistanceY", -1, 1, 0, 3, 15.873562))
sketch5.addConstraint(Sketcher.Constraint("DistanceY", -1, 1, 3, 3, 34.926438))
sketch5.addConstraint(Sketcher.Constraint("DistanceX", -1, 1, 0, 2, 25.059779))
sketch5.addConstraint(Sketcher.Constraint("DistanceX", -1, 1, 3, 2, 10.49703))
sketch5.addConstraint(Sketcher.Constraint("DistanceX", 0, 2, 1, 2, 4.490128))
sketch5.addConstraint(Sketcher.Constraint("DistanceX", 3, 3, 1, 2, 21.297941))
sketch5.addConstraint(Sketcher.Constraint("DistanceY", 1, 2, 3, 3, 21.297941))
sketch5.addConstraint(Sketcher.Constraint("DistanceX", 5, 2, 3, 2, 4.490128))
pocket4 = doc.addObject("PartDesign::Pocket", "Pocket003")
body.addObject(pocket4)
pocket4.Profile = sketch5
pocket4.Length = Q("0.1 in")

# Sketch on XY plane
sketch6 = doc.addObject("Sketcher::SketchObject", "Sketch005")
body.addObject(sketch6)
sketch6.AttachmentSupport = (doc.XY_Plane, [""])
sketch6.MapMode = "FlatFace"
sketch6.addGeometry(Part.Circle(V(11.2, 6.3, 0), V(0, 0, 1), 3.2), False)
sketch6.addGeometry(Part.Circle(V(11.2, 29.2, 0), V(0, 0, 1), 3.2), False)
sketch6.addGeometry(Part.Circle(V(-11.7, 29.2, 0), V(0, 0, 1), 3.2), False)
sketch6.addGeometry(Part.Circle(V(-11.7, 6.3, 0), V(0, 0, 1), 3.2), False)
sketch6.addConstraint(Sketcher.Constraint("Equal", 0, 1))
sketch6.addConstraint(Sketcher.Constraint("Equal", 1, 2))
sketch6.addConstraint(Sketcher.Constraint("Equal", 2, 3))
sketch6.addConstraint(Sketcher.Constraint("Horizontal", 1, 3, 2, 3))
sketch6.addConstraint(Sketcher.Constraint("Horizontal", 0, 3, 3, 3))
sketch6.addConstraint(Sketcher.Constraint("Vertical", 0, 3, 1, 3))
sketch6.addConstraint(Sketcher.Constraint("Vertical", 2, 3, 3, 3))
sketch6.addConstraint(Sketcher.Constraint("Diameter", 0, Q("0.25 in")))
sketch6.addConstraint(Sketcher.Constraint("DistanceY", 0, 3, 1, 3, Q("0.9 in")))
sketch6.addConstraint(Sketcher.Constraint("DistanceX", 2, 3, 1, 3, Q("0.9 in")))
sketch6.addConstraint(Sketcher.Constraint("DistanceX", -1, 1, 0, 3, 11.204675))
sketch6.addConstraint(Sketcher.Constraint("DistanceY", -1, 1, 0, 3, 6.348405))
pocket5 = doc.addObject("PartDesign::Pocket", "Pocket004")
body.addObject(pocket5)
pocket5.Profile = sketch6
pocket5.Length = Q("0.1 in")
pocket5.Reversed = True

# Sketch on XY plane
sketch7 = doc.addObject("Sketcher::SketchObject", "Sketch006")
body.addObject(sketch7)
sketch7.AttachmentSupport = (doc.XY_Plane, [""])
sketch7.MapMode = "FlatFace"
sketch7.AttachmentOffset = App.Placement(V(0, 0, 2 * 25.4), App.Rotation())
sketch7.addGeometry(Part.ArcOfCircle(Part.Circle(V(-0.2, 17.8, 0), V(0, 0, 1), 3.2), math.radians(135), math.radians(315)), False)
sketch7.addGeometry(Part.ArcOfCircle(Part.Circle(V(-0.2, 17.8, 0), V(0, 0, 1), 3.2), math.radians(-45), math.radians(0)), False)
sketch7.addGeometry(Part.ArcOfCircle(Part.Circle(V(-0.2, 17.8, 0), V(0, 0, 1), 3.2), math.radians(0), math.radians(135)), False)
sketch7.addGeometry(Part.ArcOfCircle(Part.Circle(V(-10.3, 27.8, 0), V(0, 0, 1), 3.2), math.radians(0), math.radians(135)), False)
sketch7.addGeometry(Part.ArcOfCircle(Part.Circle(V(-10.3, 27.8, 0), V(0, 0, 1), 3.2), math.radians(135), math.radians(315)), False)
sketch7.addGeometry(Part.ArcOfCircle(Part.Circle(V(-10.3, 27.8, 0), V(0, 0, 1), 3.2), math.radians(-45), math.radians(0)), False)
sketch7.addGeometry(Part.ArcOfCircle(Part.Circle(V(9.8, 7.7, 0), V(0, 0, 1), 3), math.radians(-45), math.radians(0)), False)
sketch7.addGeometry(Part.ArcOfCircle(Part.Circle(V(9.8, 7.7, 0), V(0, 0, 1), 3), math.radians(0), math.radians(315)), False)
sketch7.addConstraint(Sketcher.Constraint("Tangent", 0, 2, 1, 1))
sketch7.addConstraint(Sketcher.Constraint("Tangent", 1, 2, 2, 1))
sketch7.addConstraint(Sketcher.Constraint("Tangent", 2, 2, 0, 1))
sketch7.addConstraint(Sketcher.Constraint("Tangent", 3, 2, 4, 1))
sketch7.addConstraint(Sketcher.Constraint("Tangent", 4, 2, 5, 1))
sketch7.addConstraint(Sketcher.Constraint("Tangent", 5, 2, 3, 1))
sketch7.addConstraint(Sketcher.Constraint("Tangent", 6, 1, 7, 2))
sketch7.addConstraint(Sketcher.Constraint("Coincident", 7, 1, 6, 2))
sketch7.addConstraint(Sketcher.Constraint("Equal", 2, 3))
sketch7.addConstraint(Sketcher.Constraint("Horizontal", 2, 3, 1, 2))
sketch7.addConstraint(Sketcher.Constraint("Horizontal", 4, 3, 5, 2))
sketch7.addConstraint(Sketcher.Constraint("Horizontal", 6, 3, 7, 1))
sketch7.addConstraint(Sketcher.Constraint("Radius", 0, Q("0.125 in")))
sketch7.addConstraint(Sketcher.Constraint("DistanceX", 5, 3, 6, 3, Q("0.793 in")))
sketch7.addConstraint(Sketcher.Constraint("DistanceY", 6, 3, 5, 3, Q("0.793 in")))
sketch7.addConstraint(Sketcher.Constraint("Radius", 6, 2.951533))
sketch7.addConstraint(Sketcher.Constraint("DistanceX", 3, 3, 0, 3, Q("0.3965 in")))
sketch7.addConstraint(Sketcher.Constraint("DistanceY", 0, 3, 3, 3, Q("0.3965 in")))
sketch7.addConstraint(Sketcher.Constraint("DistanceX", 3, 2, 2, 2, Q("0.3965 in")))
sketch7.addConstraint(Sketcher.Constraint("DistanceX", -1, 1, 0, 2, 2.019739))
sketch7.addConstraint(Sketcher.Constraint("DistanceY", -1, 1, 0, 2, 15.533341))
sketch7.addConstraint(Sketcher.Constraint("DistanceX", 2, 2, -1, 1, 2.470389))
sketch7.addConstraint(Sketcher.Constraint("DistanceX", 4, 2, -1, 1, 8.051361))
sketch7.addConstraint(Sketcher.Constraint("DistanceX", -1, 1, 7, 1, 12.797308))
sketch7.addConstraint(Sketcher.Constraint("DistanceX", 6, 3, 6, 1, 2.087049))
pocket6 = doc.addObject("PartDesign::Pocket", "Pocket005")
body.addObject(pocket6)
pocket6.Profile = sketch7
pocket6.Length = Q("0.1 in")

doc.recompute()
